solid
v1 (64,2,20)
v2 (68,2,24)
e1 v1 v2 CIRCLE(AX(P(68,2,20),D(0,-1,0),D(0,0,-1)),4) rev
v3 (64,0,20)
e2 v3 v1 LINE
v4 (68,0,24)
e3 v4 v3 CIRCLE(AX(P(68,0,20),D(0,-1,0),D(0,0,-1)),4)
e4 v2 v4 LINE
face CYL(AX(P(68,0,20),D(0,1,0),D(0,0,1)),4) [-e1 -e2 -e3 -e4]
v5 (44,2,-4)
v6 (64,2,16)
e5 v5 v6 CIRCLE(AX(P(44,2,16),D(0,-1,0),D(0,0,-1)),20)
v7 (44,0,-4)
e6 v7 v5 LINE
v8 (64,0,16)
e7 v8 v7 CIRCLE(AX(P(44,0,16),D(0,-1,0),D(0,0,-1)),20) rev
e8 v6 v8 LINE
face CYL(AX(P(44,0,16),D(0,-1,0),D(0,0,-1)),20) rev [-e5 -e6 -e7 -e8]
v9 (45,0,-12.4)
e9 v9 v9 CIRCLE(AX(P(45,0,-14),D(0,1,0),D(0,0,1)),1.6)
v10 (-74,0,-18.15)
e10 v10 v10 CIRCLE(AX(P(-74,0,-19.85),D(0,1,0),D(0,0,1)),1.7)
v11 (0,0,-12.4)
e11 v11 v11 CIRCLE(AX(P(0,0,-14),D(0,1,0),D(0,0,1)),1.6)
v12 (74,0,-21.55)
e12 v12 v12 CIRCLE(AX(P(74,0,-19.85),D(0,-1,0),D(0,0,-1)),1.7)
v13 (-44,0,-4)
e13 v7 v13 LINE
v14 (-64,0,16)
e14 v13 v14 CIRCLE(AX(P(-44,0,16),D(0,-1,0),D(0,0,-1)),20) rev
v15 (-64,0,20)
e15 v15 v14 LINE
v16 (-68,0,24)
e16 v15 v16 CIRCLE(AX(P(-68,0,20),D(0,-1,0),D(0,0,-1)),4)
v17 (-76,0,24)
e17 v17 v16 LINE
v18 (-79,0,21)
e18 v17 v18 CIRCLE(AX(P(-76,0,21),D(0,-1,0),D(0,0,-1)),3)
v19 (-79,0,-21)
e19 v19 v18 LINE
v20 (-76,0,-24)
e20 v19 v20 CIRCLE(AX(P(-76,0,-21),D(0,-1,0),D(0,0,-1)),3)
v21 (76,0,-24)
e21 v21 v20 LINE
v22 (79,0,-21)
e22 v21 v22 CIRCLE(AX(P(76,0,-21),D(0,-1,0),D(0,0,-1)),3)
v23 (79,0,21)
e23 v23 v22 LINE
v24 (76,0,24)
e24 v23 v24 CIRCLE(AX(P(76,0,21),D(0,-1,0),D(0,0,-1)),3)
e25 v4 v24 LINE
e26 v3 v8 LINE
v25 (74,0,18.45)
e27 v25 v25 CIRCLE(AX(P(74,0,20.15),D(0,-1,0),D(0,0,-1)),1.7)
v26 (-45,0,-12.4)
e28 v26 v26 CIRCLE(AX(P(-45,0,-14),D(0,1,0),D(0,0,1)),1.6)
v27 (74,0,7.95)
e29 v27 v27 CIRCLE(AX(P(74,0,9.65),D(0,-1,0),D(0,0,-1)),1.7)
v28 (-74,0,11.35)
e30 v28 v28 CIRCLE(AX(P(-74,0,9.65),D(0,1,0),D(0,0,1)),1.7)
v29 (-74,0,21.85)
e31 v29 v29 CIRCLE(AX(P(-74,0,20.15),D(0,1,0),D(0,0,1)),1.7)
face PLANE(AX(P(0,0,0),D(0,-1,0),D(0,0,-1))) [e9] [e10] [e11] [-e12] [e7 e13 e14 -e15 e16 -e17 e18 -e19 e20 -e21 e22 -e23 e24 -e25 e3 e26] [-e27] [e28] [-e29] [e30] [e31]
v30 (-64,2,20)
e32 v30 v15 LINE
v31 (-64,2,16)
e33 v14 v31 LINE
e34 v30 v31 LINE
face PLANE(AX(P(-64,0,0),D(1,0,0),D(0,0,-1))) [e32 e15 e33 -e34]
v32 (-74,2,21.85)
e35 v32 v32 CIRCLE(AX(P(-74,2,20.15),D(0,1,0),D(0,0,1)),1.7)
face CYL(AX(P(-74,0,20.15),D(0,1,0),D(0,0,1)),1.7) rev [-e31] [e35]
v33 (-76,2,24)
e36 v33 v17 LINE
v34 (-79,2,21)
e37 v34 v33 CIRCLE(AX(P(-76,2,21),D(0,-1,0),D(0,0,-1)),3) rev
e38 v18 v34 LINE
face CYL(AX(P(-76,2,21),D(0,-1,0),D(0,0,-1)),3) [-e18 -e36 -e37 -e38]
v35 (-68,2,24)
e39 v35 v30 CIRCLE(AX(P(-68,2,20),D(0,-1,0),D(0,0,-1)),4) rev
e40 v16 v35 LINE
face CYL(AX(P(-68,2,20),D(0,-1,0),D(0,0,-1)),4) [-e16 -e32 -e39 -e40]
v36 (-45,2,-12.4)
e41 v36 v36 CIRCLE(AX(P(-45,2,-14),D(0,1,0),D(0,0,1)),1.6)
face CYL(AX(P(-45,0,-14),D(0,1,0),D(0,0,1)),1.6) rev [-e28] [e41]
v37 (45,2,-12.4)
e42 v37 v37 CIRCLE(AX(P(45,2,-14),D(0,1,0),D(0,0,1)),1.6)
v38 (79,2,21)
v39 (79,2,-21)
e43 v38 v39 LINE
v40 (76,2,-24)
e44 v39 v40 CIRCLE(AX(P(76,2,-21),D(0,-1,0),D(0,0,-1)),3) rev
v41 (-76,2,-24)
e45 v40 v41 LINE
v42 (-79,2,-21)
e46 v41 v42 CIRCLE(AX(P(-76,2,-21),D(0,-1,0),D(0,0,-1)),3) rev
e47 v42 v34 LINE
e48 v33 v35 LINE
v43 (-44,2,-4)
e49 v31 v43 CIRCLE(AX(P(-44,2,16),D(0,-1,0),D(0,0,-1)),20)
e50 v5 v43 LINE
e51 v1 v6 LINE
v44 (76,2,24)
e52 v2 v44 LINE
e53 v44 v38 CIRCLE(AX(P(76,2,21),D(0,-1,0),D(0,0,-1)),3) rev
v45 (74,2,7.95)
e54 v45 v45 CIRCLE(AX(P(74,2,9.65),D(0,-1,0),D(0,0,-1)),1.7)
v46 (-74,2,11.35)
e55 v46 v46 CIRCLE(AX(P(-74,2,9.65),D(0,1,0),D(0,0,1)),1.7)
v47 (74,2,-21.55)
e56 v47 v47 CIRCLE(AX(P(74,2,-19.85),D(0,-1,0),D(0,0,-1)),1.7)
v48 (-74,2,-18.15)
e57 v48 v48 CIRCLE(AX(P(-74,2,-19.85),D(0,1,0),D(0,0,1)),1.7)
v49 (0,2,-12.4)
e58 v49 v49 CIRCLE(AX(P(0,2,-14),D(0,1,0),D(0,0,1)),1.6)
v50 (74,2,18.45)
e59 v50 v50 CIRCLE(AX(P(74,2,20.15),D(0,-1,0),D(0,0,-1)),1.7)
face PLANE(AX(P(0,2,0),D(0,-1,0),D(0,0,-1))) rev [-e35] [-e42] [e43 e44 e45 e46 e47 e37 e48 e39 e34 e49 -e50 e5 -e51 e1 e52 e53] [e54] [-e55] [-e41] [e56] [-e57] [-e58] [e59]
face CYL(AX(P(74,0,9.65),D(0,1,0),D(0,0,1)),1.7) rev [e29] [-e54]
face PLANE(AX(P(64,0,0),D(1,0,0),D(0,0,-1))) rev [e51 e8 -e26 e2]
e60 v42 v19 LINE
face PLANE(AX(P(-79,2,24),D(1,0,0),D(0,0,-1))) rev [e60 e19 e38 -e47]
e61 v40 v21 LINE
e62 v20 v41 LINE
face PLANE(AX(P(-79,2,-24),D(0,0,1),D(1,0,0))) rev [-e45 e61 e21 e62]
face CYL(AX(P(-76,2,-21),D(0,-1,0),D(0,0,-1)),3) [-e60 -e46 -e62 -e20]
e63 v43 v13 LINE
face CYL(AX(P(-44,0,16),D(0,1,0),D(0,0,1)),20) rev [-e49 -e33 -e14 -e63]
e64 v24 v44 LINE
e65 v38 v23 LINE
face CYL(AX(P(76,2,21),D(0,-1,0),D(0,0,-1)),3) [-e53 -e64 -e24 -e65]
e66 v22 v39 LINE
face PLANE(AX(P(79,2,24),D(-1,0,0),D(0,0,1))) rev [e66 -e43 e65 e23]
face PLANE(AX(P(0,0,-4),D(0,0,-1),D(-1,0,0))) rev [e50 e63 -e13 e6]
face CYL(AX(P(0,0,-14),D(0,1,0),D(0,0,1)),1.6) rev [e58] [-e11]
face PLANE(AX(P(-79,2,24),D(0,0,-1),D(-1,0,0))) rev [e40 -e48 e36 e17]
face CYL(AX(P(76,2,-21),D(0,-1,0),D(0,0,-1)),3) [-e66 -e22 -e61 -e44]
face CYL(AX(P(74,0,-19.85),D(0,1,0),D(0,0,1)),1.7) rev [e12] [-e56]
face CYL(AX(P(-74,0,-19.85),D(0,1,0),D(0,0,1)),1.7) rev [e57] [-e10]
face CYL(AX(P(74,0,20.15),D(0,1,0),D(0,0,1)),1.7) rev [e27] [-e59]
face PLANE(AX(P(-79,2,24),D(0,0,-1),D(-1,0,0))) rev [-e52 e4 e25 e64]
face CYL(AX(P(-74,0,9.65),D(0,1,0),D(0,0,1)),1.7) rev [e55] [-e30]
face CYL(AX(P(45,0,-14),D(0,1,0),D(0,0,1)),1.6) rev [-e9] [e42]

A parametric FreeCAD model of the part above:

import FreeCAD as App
import Part
import Sketcher
from FreeCAD import Vector


def edges_at(feature, points):
    """Names of the edges that pass closest to the given points."""
    edges = feature.Shape.Edges
    near = lambda p: min(range(len(edges)), key=lambda i: edges[i].distToShape(Part.Vertex(*p))[0])
    return sorted({f"Edge{near(p) + 1}" for p in points})


def add_polygon(sketch, points):
    """Adds a closed chain of lines whose ends are joined by coincident constraints."""
    first, n = sketch.GeometryCount, len(points)
    for a, b in zip(points, points[1:] + points[:1]):
        sketch.addGeometry(Part.LineSegment(App.Vector(*a, 0), App.Vector(*b, 0)), False)
    for i in range(n):
        sketch.addConstraint(Sketcher.Constraint("Coincident", first + i, 2, first + (i + 1) % n, 1))

doc = App.newDocument("Part")
body = doc.addObject("PartDesign::Body", "Body")

sketch1 = doc.addObject("Sketcher::SketchObject", "Sketch")
body.addObject(sketch1)
sketch1.AttachmentSupport = (doc.XZ_Plane, [""])
sketch1.MapMode = "FlatFace"
add_polygon(sketch1, [(-79, -24), (-79, 24), (79, 24), (79, -24)])
sketch1.addConstraint(Sketcher.Constraint("Vertical", 0))
sketch1.addConstraint(Sketcher.Constraint("Horizontal", 1))
sketch1.addConstraint(Sketcher.Constraint("Vertical", 2))
sketch1.addConstraint(Sketcher.Constraint("Horizontal", 3))
sketch1.addConstraint(Sketcher.Constraint("Symmetric", 0, 2, 2, 2, -1, 1))
sketch1.addConstraint(Sketcher.Constraint("DistanceX", 1, 1, 1, 2, 158.0))
sketch1.addConstraint(Sketcher.Constraint("DistanceY", 0, 1, 0, 2, 48.0))
pad1 = doc.addObject("PartDesign::Pad", "Pad")
body.addObject(pad1)
pad1.Profile = sketch1
pad1.Length = 2
pad1.Reversed = True

sketch2 = doc.addObject("Sketcher::SketchObject", "Sketch001")
body.addObject(sketch2)
sketch2.AttachmentSupport = (doc.XZ_Plane, [""])
sketch2.MapMode = "FlatFace"
sketch2.AttachmentOffset = App.Placement(Vector(0, 0, -2), App.Rotation())
add_polygon(sketch2, [(-64, -4), (-64, 24), (64, 24), (64, -4)])
sketch2.addConstraint(Sketcher.Constraint("Vertical", 0))
sketch2.addConstraint(Sketcher.Constraint("Horizontal", 1))
sketch2.addConstraint(Sketcher.Constraint("Vertical", 2))
sketch2.addConstraint(Sketcher.Constraint("Horizontal", 3))
sketch2.addConstraint(Sketcher.Constraint("DistanceX", 1, 1, 1, 2, 128.0))
sketch2.addConstraint(Sketcher.Constraint("DistanceY", 0, 1, 0, 2, 28.0))
sketch2.addConstraint(Sketcher.Constraint("DistanceX", 0, 2, -1, 1, 64.0))
sketch2.addConstraint(Sketcher.Constraint("DistanceY", -1, 1, 0, 2, 24.0))
pocket1 = doc.addObject("PartDesign::Pocket", "Pocket")
body.addObject(pocket1)
pocket1.Profile = sketch2
pocket1.Length = 2
pocket1.Reversed = True

sketch3 = doc.addObject("Sketcher::SketchObject", "Sketch002")
body.addObject(sketch3)
sketch3.AttachmentSupport = (doc.XZ_Plane, [""])
sketch3.MapMode = "FlatFace"
sketch3.AttachmentOffset = App.Placement(Vector(0, 0, -2), App.Rotation())
sketch3.addGeometry(Part.Circle(Vector(-74, -19.9, 0), Vector(0, 0, 1), 1.7), False)
sketch3.addGeometry(Part.Circle(Vector(-74, 9.7, 0), Vector(0, 0, 1), 1.7), False)
sketch3.addGeometry(Part.Circle(Vector(-74, 20.1, 0), Vector(0, 0, 1), 1.7), False)
sketch3.addGeometry(Part.Circle(Vector(74, 20.1, 0), Vector(0, 0, 1), 1.7), False)
sketch3.addGeometry(Part.Circle(Vector(74, 9.7, 0), Vector(0, 0, 1), 1.7), False)
sketch3.addGeometry(Part.Circle(Vector(74, -19.9, 0), Vector(0, 0, 1), 1.7), False)
sketch3.addConstraint(Sketcher.Constraint("Equal", 0, 1))
sketch3.addConstraint(Sketcher.Constraint("Equal", 1, 2))
sketch3.addConstraint(Sketcher.Constraint("Equal", 2, 3))
sketch3.addConstraint(Sketcher.Constraint("Equal", 3, 4))
sketch3.addConstraint(Sketcher.Constraint("Equal", 4, 5))
sketch3.addConstraint(Sketcher.Constraint("Symmetric", 2, 3, 3, 3, -2))
sketch3.addConstraint(Sketcher.Constraint("Symmetric", 1, 3, 4, 3, -2))
sketch3.addConstraint(Sketcher.Constraint("Symmetric", 0, 3, 5, 3, -2))
sketch3.addConstraint(Sketcher.Constraint("Vertical", 0, 3, 1, 3))
sketch3.addConstraint(Sketcher.Constraint("Vertical", 1, 3, 2, 3))
sketch3.addConstraint(Sketcher.Constraint("Diameter", 0, 3.4))
sketch3.addConstraint(Sketcher.Constraint("DistanceX", 0, 3, -1, 1, 74.0))
sketch3.addConstraint(Sketcher.Constraint("DistanceY", 0, 3, 2, 3, 40.0))
sketch3.addConstraint(Sketcher.Constraint("DistanceY", 0, 3, 1, 3, 29.5))
sketch3.addConstraint(Sketcher.Constraint("DistanceY", 0, 3, -1, 1, 19.85))
pocket2 = doc.addObject("PartDesign::Pocket", "Pocket001")
body.addObject(pocket2)
pocket2.Profile = sketch3
pocket2.Length = 2
pocket2.Reversed = True

sketch4 = doc.addObject("Sketcher::SketchObject", "Sketch003")
body.addObject(sketch4)
sketch4.AttachmentSupport = (doc.XZ_Plane, [""])
sketch4.MapMode = "FlatFace"
sketch4.AttachmentOffset = App.Placement(Vector(0, 0, -2), App.Rotation())
sketch4.addGeometry(Part.Circle(Vector(0, -14, 0), Vector(0, 0, 1), 1.6), False)
sketch4.addGeometry(Part.Circle(Vector(-45, -14, 0), Vector(0, 0, 1), 1.6), False)
sketch4.addGeometry(Part.Circle(Vector(45, -14, 0), Vector(0, 0, 1), 1.6), False)
sketch4.addConstraint(Sketcher.Constraint("Equal", 0, 1))
sketch4.addConstraint(Sketcher.Constraint("Equal", 1, 2))
sketch4.addConstraint(Sketcher.Constraint("Symmetric", 1, 3, 2, 3, -2))
sketch4.addConstraint(Sketcher.Constraint("PointOnObject", 0, 3, -2))
sketch4.addConstraint(Sketcher.Constraint("Horizontal", 0, 3, 1, 3))
sketch4.addConstraint(Sketcher.Constraint("Diameter", 0, 3.2))
sketch4.addConstraint(Sketcher.Constraint("DistanceY", 0, 3, -1, 1, 14.0))
sketch4.addConstraint(Sketcher.Constraint("DistanceX", 1, 3, -1, 1, 45.0))
pocket3 = doc.addObject("PartDesign::Pocket", "Pocket002")
body.addObject(pocket3)
pocket3.Profile = sketch4
pocket3.Length = 2
pocket3.Reversed = True
doc.recompute()

fillet = doc.addObject("PartDesign::Fillet", "Fillet")
body.addObject(fillet)
fillet.Base = (pocket3, edges_at(pocket3, [
    (79, 1, 24),
    (-79, 1, 24),
    (-79, 1, -24),
    (79, 1, -24),
]))
fillet.Radius = 3
doc.recompute()

fillet2 = doc.addObject("PartDesign::Fillet", "Fillet001")
body.addObject(fillet2)
fillet2.Base = (fillet, edges_at(fillet, [(64, 1, 24), (-64, 1, 24)]))
fillet2.Radius = 4
doc.recompute()

fillet3 = doc.addObject("PartDesign::Fillet", "Fillet002")
body.addObject(fillet3)
fillet3.Base = (fillet2, edges_at(fillet2, [(64, 1, -4), (-64, 1, -4)]))
fillet3.Radius = 20

doc.recompute()
